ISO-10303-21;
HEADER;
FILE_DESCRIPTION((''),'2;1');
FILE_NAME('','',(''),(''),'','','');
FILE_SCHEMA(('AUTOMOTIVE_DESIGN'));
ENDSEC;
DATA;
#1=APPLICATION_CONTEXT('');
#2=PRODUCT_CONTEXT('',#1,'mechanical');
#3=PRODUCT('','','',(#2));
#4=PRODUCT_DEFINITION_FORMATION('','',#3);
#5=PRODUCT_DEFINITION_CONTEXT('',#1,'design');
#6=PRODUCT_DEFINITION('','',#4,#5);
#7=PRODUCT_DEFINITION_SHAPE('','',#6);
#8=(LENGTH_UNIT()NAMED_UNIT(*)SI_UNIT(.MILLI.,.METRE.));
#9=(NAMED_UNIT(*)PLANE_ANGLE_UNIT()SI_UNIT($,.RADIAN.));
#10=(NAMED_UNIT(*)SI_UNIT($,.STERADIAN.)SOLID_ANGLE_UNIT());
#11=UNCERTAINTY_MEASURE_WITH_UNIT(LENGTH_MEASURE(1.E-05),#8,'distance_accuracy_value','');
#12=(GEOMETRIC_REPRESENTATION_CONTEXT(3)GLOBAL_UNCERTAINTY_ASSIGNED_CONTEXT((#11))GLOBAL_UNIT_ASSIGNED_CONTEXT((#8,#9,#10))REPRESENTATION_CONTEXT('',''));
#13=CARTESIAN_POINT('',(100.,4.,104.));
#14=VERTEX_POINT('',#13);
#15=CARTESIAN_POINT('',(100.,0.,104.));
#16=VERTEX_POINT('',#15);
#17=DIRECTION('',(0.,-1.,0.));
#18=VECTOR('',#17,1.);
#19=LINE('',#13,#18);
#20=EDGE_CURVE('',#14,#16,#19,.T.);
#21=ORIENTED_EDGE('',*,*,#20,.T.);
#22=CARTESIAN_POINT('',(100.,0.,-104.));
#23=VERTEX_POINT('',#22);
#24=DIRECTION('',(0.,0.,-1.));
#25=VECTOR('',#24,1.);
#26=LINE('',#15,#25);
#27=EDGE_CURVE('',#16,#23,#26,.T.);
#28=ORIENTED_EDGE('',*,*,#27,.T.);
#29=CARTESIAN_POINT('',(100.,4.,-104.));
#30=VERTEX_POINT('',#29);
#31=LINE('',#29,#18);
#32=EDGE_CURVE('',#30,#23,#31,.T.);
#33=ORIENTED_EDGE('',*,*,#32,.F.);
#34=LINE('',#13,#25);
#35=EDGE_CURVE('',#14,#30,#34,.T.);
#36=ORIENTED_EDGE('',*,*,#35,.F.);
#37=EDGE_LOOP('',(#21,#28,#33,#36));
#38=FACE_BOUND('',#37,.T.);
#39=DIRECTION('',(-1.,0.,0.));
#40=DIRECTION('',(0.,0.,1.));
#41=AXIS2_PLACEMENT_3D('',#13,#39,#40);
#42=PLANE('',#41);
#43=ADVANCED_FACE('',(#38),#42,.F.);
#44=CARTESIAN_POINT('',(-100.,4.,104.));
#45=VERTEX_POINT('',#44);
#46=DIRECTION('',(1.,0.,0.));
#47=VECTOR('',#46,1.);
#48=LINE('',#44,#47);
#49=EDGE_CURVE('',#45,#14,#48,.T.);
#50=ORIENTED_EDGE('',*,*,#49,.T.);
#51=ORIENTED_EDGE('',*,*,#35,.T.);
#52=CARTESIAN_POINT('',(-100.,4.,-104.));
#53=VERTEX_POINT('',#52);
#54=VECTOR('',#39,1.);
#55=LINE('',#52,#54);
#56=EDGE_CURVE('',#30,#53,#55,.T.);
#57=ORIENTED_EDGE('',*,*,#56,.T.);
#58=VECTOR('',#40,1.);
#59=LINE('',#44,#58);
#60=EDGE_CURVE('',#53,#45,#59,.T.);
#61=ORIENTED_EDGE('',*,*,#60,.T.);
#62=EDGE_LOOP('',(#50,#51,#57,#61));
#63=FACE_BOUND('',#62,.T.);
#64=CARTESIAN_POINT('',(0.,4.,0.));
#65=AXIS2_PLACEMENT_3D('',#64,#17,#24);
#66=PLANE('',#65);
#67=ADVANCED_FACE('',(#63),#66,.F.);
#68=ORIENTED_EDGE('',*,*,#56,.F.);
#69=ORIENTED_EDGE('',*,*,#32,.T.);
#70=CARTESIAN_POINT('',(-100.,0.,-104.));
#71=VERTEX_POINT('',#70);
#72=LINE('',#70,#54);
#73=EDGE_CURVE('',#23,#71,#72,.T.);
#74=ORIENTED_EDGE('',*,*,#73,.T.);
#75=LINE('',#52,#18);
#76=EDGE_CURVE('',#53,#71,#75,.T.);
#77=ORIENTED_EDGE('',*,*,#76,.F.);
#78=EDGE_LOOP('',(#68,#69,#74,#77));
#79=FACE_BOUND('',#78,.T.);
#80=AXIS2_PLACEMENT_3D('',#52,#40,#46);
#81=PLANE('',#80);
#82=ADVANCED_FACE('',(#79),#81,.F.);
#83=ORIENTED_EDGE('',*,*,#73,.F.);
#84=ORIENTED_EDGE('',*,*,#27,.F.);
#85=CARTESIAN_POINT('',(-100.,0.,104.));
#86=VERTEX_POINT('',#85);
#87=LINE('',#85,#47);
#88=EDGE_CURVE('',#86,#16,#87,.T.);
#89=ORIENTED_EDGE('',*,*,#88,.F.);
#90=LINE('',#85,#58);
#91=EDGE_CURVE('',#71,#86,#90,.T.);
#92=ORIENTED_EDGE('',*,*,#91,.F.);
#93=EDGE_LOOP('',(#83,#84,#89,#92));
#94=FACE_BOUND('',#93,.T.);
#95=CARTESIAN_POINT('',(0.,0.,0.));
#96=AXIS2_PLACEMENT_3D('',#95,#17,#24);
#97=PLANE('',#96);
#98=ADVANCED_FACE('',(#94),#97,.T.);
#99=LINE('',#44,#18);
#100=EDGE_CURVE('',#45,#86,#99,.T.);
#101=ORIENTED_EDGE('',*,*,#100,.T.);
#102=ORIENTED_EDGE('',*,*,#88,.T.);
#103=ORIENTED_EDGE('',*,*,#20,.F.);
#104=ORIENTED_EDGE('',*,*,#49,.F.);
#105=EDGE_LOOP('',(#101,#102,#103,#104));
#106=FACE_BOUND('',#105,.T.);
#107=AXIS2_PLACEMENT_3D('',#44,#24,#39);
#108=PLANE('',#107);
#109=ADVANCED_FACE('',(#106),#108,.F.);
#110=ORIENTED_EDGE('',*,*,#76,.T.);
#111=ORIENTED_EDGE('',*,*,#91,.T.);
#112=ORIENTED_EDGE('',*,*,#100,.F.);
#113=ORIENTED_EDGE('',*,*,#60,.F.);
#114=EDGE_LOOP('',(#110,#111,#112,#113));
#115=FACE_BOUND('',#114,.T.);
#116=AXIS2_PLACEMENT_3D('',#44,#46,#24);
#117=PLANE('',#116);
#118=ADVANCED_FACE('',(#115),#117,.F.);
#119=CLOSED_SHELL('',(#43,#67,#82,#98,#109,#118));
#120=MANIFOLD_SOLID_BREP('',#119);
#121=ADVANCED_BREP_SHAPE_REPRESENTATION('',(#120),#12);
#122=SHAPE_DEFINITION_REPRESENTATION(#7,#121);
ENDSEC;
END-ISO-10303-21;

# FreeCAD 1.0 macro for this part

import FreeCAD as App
import Part
import Sketcher

V = App.Vector


def add_polygon(sketch, points):
    """Adds a closed chain of lines whose ends are joined by coincident constraints."""
    first, n = sketch.GeometryCount, len(points)
    for a, b in zip(points, points[1:] + points[:1]):
        sketch.addGeometry(Part.LineSegment(App.Vector(*a, 0), App.Vector(*b, 0)), False)
    for i in range(n):
        sketch.addConstraint(Sketcher.Constraint("Coincident", first + i, 2, first + (i + 1) % n, 1))

doc = App.newDocument("Part")
body = doc.addObject("PartDesign::Body", "Body")

# Sketch on XZ plane
sketch1 = body.newObject("Sketcher::SketchObject", "Sketch")
sketch1.AttachmentSupport = (doc.getObject("XZ_Plane"), [""])
sketch1.MapMode = "FlatFace"
add_polygon(sketch1, [(-100, -104), (-100, 104), (100, 104), (100, -104)])  # lines 0-3
sketch1.addConstraint([
    Sketcher.Constraint("Vertical", 0),
    Sketcher.Constraint("Horizontal", 1),
    Sketcher.Constraint("Vertical", 2),
    Sketcher.Constraint("Horizontal", 3),
    Sketcher.Constraint("Symmetric", 0, 2, 2, 2, -1, 1),
    Sketcher.Constraint("DistanceX", 1, 1, 1, 2, 200.0),
    Sketcher.Constraint("DistanceY", 0, 1, 0, 2, 208.0),
])
pad1 = body.newObject("PartDesign::Pad", "Pad")
pad1.Profile = sketch1
pad1.Length = 4
pad1.Reversed = True

doc.recompute()
